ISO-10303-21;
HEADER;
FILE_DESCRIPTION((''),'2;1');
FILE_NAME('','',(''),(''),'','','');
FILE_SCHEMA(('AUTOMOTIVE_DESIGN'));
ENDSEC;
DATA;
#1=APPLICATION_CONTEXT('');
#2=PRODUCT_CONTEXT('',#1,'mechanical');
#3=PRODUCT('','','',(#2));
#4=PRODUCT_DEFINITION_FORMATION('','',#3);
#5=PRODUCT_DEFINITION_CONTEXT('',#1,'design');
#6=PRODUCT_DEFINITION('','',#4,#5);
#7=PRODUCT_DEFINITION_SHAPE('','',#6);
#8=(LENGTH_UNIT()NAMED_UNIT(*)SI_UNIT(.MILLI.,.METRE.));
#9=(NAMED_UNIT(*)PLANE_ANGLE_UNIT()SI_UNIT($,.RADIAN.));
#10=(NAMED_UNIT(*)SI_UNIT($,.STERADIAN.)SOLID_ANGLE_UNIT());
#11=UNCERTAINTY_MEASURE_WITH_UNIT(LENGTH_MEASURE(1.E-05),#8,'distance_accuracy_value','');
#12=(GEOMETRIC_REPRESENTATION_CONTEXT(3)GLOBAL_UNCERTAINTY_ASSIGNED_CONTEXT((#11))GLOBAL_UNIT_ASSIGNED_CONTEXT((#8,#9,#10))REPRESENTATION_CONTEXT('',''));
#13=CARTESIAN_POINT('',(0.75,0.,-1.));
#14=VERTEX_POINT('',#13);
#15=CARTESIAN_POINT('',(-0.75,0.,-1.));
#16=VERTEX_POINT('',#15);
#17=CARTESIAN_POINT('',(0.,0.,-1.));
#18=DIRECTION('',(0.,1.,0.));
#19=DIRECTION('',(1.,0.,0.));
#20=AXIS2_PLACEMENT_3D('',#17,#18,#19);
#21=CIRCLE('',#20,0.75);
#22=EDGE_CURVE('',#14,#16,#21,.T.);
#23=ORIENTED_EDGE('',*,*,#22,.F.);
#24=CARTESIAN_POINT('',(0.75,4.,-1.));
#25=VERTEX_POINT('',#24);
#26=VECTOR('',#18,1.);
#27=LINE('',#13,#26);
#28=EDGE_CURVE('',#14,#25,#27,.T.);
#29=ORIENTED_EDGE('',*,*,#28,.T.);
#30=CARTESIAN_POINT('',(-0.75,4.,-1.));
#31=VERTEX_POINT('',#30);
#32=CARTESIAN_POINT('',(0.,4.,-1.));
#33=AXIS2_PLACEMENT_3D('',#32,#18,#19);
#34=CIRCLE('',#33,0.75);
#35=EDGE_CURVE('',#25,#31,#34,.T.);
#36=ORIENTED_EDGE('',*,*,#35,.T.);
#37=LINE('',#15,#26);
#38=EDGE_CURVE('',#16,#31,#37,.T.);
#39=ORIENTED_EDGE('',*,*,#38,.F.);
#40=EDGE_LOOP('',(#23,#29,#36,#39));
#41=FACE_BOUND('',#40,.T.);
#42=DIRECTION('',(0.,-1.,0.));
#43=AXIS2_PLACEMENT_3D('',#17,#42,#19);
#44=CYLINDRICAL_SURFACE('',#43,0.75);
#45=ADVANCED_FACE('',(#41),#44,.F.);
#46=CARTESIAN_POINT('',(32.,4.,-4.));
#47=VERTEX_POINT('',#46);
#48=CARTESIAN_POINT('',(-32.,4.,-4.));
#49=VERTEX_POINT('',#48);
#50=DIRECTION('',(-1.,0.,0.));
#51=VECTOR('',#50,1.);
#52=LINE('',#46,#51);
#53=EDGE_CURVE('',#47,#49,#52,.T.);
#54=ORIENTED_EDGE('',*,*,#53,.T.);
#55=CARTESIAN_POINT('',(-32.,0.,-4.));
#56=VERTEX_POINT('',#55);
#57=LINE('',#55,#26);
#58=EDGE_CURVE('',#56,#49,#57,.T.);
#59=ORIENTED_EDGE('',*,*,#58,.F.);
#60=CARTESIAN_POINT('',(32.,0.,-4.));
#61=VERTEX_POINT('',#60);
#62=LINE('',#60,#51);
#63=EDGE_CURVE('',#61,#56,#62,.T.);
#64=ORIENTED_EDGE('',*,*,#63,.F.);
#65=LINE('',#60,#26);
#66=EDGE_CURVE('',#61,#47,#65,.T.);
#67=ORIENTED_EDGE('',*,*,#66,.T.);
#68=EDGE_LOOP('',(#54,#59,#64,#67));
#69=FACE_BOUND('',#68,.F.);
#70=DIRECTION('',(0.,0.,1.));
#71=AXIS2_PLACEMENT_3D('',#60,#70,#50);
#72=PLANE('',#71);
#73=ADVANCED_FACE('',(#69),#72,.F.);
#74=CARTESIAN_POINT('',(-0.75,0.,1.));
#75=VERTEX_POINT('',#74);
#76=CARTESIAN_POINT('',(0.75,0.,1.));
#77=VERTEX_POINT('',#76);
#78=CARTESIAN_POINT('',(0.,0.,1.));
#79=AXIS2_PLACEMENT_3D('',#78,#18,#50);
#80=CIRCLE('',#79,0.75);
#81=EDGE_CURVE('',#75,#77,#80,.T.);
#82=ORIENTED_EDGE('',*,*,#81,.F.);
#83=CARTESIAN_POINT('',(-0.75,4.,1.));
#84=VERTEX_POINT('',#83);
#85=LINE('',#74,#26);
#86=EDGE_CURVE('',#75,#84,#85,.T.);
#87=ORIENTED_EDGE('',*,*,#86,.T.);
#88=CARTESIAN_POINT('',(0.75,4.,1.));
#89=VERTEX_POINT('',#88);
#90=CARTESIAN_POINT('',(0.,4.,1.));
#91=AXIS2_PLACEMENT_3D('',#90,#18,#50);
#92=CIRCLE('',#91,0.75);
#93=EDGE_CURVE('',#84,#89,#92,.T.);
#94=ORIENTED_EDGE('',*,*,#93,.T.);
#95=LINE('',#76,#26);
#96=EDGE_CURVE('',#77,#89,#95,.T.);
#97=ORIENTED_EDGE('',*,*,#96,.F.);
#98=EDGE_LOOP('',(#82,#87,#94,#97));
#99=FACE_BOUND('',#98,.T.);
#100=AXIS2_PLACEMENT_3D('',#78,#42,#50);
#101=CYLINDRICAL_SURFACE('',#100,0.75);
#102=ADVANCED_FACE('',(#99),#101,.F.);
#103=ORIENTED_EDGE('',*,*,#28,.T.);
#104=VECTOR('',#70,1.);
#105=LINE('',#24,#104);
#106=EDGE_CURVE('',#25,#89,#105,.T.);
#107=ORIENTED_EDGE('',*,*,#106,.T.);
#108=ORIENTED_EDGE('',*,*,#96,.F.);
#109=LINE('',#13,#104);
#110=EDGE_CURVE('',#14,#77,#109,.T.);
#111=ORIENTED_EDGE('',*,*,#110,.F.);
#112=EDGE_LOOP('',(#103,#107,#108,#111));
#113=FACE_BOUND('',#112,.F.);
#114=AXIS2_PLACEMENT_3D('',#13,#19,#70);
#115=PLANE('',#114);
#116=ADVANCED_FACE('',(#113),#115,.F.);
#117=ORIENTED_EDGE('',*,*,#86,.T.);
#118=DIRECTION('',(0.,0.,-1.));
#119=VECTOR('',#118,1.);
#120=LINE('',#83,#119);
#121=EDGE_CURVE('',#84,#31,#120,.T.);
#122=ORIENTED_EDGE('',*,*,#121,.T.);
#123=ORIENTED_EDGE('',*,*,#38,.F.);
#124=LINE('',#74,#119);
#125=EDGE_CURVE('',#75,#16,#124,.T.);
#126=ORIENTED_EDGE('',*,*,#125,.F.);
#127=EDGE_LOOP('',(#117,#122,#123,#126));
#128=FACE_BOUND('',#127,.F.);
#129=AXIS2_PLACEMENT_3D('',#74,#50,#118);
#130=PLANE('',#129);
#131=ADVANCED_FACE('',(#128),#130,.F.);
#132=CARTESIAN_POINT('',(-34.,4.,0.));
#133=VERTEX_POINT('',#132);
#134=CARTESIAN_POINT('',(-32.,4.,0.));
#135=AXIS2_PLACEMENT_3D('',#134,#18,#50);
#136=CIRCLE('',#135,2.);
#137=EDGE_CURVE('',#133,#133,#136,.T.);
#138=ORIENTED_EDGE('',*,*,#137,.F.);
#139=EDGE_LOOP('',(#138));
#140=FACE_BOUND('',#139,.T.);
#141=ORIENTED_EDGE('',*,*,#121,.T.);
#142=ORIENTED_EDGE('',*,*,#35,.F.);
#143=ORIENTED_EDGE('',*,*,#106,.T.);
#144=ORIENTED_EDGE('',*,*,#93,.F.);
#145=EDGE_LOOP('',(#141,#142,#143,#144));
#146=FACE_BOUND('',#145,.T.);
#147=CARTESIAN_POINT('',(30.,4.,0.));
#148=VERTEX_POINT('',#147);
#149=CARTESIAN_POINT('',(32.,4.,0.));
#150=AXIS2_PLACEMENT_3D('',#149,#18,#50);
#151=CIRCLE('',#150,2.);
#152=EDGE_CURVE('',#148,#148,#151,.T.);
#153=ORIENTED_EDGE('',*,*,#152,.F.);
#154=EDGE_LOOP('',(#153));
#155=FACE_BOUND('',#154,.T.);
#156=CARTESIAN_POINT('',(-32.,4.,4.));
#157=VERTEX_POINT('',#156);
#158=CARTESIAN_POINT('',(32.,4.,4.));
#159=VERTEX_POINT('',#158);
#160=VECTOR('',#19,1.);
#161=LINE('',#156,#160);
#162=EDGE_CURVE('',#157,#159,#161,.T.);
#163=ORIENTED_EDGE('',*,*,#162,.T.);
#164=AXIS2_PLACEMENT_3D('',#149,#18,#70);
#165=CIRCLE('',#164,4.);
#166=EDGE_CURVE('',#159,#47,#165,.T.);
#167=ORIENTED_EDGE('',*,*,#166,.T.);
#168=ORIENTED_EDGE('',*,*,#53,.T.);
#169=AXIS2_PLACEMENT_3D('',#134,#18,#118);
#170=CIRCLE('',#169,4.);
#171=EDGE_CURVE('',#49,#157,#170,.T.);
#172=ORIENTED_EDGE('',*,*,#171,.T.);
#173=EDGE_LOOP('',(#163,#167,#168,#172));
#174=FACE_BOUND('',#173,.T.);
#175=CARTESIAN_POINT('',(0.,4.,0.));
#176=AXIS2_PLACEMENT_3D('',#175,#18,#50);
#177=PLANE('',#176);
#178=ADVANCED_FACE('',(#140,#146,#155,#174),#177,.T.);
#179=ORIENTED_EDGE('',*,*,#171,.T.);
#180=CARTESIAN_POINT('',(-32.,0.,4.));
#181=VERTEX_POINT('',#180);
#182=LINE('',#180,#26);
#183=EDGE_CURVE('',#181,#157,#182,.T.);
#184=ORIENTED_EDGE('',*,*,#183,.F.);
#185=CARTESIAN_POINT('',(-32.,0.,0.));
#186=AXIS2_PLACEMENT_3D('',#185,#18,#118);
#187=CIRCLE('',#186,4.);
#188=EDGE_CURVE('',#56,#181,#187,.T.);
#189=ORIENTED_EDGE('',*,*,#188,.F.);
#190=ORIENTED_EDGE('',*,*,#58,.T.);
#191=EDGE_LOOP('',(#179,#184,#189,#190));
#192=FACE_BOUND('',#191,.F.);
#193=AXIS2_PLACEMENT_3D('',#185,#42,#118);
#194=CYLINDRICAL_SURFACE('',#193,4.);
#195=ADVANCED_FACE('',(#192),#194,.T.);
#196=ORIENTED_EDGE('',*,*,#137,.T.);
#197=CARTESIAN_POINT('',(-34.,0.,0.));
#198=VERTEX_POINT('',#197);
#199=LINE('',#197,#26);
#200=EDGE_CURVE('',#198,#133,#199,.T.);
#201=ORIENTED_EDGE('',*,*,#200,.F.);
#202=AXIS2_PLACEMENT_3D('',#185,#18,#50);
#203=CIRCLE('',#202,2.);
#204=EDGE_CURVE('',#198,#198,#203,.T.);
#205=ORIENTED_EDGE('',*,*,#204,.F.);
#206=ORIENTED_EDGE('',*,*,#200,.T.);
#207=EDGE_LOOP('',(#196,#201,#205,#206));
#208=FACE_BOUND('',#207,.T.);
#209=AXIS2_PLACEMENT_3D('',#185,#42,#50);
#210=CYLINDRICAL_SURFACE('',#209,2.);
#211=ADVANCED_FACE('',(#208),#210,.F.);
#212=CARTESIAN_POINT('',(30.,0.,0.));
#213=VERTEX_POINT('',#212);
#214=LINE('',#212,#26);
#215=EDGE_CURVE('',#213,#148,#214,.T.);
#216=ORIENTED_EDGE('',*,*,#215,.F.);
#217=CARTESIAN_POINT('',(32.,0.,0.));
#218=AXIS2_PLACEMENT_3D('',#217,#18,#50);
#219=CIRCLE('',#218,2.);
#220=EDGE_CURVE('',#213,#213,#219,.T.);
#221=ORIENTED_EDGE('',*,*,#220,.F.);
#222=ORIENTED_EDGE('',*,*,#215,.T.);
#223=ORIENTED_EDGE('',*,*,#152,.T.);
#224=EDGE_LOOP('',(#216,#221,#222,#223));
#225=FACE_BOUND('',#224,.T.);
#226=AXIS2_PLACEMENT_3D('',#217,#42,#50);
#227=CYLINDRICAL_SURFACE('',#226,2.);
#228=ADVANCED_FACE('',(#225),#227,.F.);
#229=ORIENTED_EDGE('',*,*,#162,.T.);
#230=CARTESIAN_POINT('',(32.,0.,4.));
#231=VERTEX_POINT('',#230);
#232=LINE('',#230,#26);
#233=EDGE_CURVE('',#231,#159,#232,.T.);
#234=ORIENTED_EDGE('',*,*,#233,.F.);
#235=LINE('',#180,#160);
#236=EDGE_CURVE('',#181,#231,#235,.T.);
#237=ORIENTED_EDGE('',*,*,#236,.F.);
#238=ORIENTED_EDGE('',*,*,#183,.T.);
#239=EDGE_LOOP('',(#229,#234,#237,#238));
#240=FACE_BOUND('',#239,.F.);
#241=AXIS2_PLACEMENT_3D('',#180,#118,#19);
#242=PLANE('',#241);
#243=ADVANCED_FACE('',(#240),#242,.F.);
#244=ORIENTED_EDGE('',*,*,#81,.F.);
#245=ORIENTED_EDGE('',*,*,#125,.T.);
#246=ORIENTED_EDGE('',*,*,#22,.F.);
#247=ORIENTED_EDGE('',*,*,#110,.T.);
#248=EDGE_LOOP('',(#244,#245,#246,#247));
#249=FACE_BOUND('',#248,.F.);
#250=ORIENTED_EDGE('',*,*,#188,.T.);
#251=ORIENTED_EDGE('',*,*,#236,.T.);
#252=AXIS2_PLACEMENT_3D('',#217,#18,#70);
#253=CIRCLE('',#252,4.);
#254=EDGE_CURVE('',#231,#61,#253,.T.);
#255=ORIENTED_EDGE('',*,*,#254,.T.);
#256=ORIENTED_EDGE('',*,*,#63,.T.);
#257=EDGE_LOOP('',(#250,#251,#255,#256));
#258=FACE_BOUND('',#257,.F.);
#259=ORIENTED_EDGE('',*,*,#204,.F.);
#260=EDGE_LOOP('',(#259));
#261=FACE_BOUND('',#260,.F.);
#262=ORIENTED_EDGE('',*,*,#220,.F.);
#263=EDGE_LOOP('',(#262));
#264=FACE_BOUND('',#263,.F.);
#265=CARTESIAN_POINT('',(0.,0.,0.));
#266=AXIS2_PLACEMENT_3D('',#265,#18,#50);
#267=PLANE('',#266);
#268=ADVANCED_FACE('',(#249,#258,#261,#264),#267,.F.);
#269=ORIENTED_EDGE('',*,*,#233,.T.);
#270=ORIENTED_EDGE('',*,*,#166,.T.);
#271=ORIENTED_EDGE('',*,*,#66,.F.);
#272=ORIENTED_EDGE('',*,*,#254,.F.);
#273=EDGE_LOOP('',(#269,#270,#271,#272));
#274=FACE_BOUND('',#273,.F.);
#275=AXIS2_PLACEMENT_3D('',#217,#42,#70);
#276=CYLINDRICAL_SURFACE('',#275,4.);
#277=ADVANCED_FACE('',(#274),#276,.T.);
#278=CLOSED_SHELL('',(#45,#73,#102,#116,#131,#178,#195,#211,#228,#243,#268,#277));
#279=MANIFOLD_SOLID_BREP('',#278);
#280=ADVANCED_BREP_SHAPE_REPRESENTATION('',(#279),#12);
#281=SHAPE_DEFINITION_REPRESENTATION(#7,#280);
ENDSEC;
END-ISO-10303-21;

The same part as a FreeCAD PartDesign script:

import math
import FreeCAD as App
import Part
import Sketcher

V = App.Vector
Q = App.Units.Quantity

doc = App.newDocument("Part")
params = doc.addObject("Spreadsheet::Sheet", "Params")
for row, (alias, value) in enumerate([
    ("sketch1_diameter", "4 mm"),
    ("sketch1_radius", "4 mm"),
    ("sketch1_height", "2 mm"),
    ("sketch1_radius2", "0.75 mm"),
    ("pad1_length", "4 mm"),
], start=1):
    params.set(f"A{row}", alias)
    params.set(f"B{row}", "=" + value)
    params.setAlias(f"B{row}", alias)

body = doc.addObject("PartDesign::Body", "Body")

# Sketch on XZ plane
sketch1 = body.newObject("Sketcher::SketchObject", "Sketch")
sketch1.AttachmentSupport = (doc.getObject("XZ_Plane"), [""])
sketch1.MapMode = "FlatFace"
sketch1.addGeometry([
    Part.ArcOfCircle(Part.Circle(V(-32, 0, 0), V(0, 0, 1), 4), math.radians(90), math.radians(270)),  # 0
    Part.LineSegment(V(-32, 4, 0), V(32, 4, 0)),  # 1
    Part.ArcOfCircle(Part.Circle(V(32, 0, 0), V(0, 0, 1), 4), math.radians(-90), math.radians(90)),  # 2
    Part.LineSegment(V(32, -4, 0), V(-32, -4, 0)),  # 3
    Part.Circle(V(32, 0, 0), V(0, 0, 1), 2),  # 4
    Part.ArcOfCircle(Part.Circle(V(0, -1, 0), V(0, 0, 1), 0.8), math.radians(180), math.radians(360)),  # 5
    Part.LineSegment(V(0.8, -1, 0), V(0.8, 1, 0)),  # 6
    Part.ArcOfCircle(Part.Circle(V(0, 1, 0), V(0, 0, 1), 0.8), math.radians(0), math.radians(180)),  # 7
    Part.LineSegment(V(-0.8, 1, 0), V(-0.8, -1, 0)),  # 8
    Part.Circle(V(-32, 0, 0), V(0, 0, 1), 2),  # 9
], False)
sketch1.addConstraint([
    Sketcher.Constraint("Tangent", 0, 1, 1, 1),
    Sketcher.Constraint("Tangent", 1, 2, 2, 2),
    Sketcher.Constraint("Tangent", 2, 1, 3, 1),
    Sketcher.Constraint("Tangent", 3, 2, 0, 2),
    Sketcher.Constraint("Tangent", 5, 2, 6, 1),
    Sketcher.Constraint("Tangent", 6, 2, 7, 1),
    Sketcher.Constraint("Tangent", 7, 2, 8, 1),
    Sketcher.Constraint("Tangent", 8, 2, 5, 1),
    Sketcher.Constraint("Horizontal", 1),
    Sketcher.Constraint("Horizontal", 3),
    Sketcher.Constraint("Vertical", 6),
    Sketcher.Constraint("Vertical", 8),
    Sketcher.Constraint("Coincident", 4, 3, 2, 3),
    Sketcher.Constraint("Coincident", 9, 3, 0, 3),
    Sketcher.Constraint("Equal", 4, 9),
    Sketcher.Constraint("Symmetric", 0, 3, 2, 3, -1, 1),
    Sketcher.Constraint("Symmetric", 5, 3, 7, 3, -1, 1),
    Sketcher.Constraint("Diameter", 4, Q("4 mm")),
    Sketcher.Constraint("Radius", 0, Q("4 mm")),
    Sketcher.Constraint("DistanceY", 6, 1, 6, 2, Q("2 mm")),
    Sketcher.Constraint("Radius", 5, Q("0.75 mm")),
    Sketcher.Constraint("DistanceX", 0, 3, -1, 1, Q("32 mm")),
])
sketch1.setExpression("Constraints[17]", "Params.sketch1_diameter")
sketch1.setExpression("Constraints[18]", "Params.sketch1_radius")
sketch1.setExpression("Constraints[19]", "Params.sketch1_height")
sketch1.setExpression("Constraints[20]", "Params.sketch1_radius2")
pad1 = body.newObject("PartDesign::Pad", "Pad")
pad1.Profile = sketch1
pad1.setExpression("Length", "Params.pad1_length")
pad1.Reversed = True

doc.recompute()
